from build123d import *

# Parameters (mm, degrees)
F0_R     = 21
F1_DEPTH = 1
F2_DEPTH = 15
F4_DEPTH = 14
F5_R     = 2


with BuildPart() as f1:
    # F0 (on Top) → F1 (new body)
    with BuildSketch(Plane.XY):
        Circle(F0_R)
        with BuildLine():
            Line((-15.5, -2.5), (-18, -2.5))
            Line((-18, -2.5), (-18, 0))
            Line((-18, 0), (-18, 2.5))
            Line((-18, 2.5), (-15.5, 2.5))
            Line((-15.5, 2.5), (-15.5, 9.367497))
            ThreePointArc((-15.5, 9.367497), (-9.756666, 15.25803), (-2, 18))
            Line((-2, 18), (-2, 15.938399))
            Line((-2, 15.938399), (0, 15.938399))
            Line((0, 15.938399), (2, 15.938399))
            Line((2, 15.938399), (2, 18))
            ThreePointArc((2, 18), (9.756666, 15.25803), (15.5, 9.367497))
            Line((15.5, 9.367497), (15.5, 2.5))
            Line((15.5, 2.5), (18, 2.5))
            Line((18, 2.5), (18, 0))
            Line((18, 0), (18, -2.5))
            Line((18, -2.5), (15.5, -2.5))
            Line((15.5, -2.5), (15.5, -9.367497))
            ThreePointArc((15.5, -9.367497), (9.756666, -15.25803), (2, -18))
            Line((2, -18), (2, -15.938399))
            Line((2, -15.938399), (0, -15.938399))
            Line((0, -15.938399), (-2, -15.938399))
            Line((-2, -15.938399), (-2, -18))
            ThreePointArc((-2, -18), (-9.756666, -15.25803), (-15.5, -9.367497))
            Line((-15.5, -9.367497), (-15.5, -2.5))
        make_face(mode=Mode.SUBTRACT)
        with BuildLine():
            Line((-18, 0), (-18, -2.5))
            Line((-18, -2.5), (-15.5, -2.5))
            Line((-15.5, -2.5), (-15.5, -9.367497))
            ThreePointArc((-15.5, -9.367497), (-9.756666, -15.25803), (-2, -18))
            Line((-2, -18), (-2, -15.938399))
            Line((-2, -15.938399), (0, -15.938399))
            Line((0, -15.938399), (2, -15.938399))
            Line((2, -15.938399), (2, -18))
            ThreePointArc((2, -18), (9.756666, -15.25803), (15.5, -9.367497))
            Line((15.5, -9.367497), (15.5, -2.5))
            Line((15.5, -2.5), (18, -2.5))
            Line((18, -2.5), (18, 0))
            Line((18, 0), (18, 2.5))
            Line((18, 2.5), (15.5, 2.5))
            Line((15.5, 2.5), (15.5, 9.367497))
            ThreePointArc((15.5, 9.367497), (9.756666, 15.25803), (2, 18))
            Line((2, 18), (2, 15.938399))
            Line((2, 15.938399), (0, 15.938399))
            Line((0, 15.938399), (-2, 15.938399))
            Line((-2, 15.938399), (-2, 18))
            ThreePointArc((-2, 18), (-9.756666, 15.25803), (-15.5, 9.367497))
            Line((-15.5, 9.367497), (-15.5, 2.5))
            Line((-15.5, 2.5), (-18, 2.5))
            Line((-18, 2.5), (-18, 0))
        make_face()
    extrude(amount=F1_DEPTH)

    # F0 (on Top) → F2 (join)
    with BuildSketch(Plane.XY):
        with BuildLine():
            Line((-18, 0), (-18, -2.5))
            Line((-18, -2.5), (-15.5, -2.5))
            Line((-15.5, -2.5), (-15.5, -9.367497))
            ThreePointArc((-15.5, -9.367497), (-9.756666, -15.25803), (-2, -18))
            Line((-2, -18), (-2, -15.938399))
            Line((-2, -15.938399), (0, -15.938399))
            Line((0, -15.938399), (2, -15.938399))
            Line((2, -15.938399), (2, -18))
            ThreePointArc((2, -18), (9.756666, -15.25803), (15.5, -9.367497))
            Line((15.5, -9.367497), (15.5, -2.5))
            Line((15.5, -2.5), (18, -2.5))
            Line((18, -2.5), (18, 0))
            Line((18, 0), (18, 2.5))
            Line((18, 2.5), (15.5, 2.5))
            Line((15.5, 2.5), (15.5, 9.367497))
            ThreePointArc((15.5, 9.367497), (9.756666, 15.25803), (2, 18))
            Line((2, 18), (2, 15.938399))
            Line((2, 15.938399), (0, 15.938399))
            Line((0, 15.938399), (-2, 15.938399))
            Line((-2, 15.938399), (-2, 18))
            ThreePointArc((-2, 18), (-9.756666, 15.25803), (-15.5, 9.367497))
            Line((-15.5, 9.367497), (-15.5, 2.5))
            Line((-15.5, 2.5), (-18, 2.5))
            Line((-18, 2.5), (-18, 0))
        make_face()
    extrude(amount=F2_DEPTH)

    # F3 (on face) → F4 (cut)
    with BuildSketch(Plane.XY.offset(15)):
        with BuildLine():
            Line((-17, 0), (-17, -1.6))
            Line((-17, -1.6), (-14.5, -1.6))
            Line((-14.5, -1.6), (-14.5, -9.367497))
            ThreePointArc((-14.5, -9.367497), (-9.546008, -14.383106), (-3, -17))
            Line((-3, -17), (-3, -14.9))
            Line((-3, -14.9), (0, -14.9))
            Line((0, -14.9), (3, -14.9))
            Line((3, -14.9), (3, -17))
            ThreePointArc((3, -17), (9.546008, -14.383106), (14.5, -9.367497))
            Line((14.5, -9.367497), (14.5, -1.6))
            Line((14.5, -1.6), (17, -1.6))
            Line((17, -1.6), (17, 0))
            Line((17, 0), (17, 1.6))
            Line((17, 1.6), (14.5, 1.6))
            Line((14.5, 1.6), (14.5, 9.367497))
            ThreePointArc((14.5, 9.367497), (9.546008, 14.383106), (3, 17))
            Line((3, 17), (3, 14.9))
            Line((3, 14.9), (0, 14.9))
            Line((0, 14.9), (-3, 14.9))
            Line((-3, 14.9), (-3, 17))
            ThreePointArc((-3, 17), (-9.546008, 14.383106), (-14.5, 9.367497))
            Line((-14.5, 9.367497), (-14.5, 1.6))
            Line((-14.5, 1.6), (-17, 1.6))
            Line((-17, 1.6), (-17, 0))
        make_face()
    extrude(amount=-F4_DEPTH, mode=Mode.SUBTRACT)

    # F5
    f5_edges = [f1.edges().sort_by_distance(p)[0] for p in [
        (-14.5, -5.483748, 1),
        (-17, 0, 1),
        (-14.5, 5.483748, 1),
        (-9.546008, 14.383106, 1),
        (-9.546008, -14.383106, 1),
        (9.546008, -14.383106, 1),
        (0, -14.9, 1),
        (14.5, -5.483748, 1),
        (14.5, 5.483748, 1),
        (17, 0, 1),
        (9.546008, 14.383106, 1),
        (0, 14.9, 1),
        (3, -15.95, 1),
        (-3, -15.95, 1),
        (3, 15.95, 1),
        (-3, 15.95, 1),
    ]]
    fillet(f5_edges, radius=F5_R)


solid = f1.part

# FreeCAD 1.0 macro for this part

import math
import FreeCAD as App
import Part
import Sketcher
from FreeCAD import Vector
Q = App.Units.Quantity


def edges_at(feature, points):
    """Names of the edges that pass closest to the given points."""
    edges = feature.Shape.Edges
    near = lambda p: min(range(len(edges)), key=lambda i: edges[i].distToShape(Part.Vertex(*p))[0])
    return sorted({f"Edge{near(p) + 1}" for p in points})

doc = App.newDocument("Part")
params = doc.addObject("Spreadsheet::Sheet", "Params")
for row, (alias, value) in enumerate([
    ("sketch1_diameter", "42 mm"),
    ("pad1_length", "1 mm"),
    ("sketch2_width", "4 mm"),
    ("sketch2_height", "5 mm"),
    ("sketch2_width2", "2.5 mm"),
    ("pad2_length", "15 mm"),
    ("sketch3_width", "6 mm"),
    ("sketch3_width2", "2.5 mm"),
    ("sketch3_height", "2.1 mm"),
    ("sketch3_height2", "3.2 mm"),
    ("pocket1_length", "14 mm"),
    ("fillet_radius", "2 mm"),
], start=1):
    params.set(f"A{row}", alias)
    params.set(f"B{row}", "=" + value)
    params.setAlias(f"B{row}", alias)

body = doc.addObject("PartDesign::Body", "Body")

# Sketch on XY plane
sketch1 = doc.addObject("Sketcher::SketchObject", "Sketch")
body.addObject(sketch1)
sketch1.AttachmentSupport = (doc.XY_Plane, [""])
sketch1.MapMode = "FlatFace"
sketch1.addGeometry(Part.Circle(Vector(0, 0, 0), Vector(0, 0, 1), 21), False)
sketch1.addConstraint(Sketcher.Constraint("Coincident", 0, 3, -1, 1))
sketch1.addConstraint(Sketcher.Constraint("Diameter", 0, Q("42 mm")))
sketch1.setExpression("Constraints[1]", "Params.sketch1_diameter")
pad1 = doc.addObject("PartDesign::Pad", "Pad")
body.addObject(pad1)
pad1.Profile = sketch1
pad1.setExpression("Length", "Params.pad1_length")

# Sketch on XY plane
sketch2 = doc.addObject("Sketcher::SketchObject", "Sketch001")
body.addObject(sketch2)
sketch2.AttachmentSupport = (doc.XY_Plane, [""])
sketch2.MapMode = "FlatFace"
sketch2.addGeometry(Part.LineSegment(Vector(-18, -2.5, 0), Vector(-15.5, -2.5, 0)), False)
sketch2.addGeometry(Part.LineSegment(Vector(-15.5, -2.5, 0), Vector(-15.5, -9.367497, 0)), False)
sketch2.addGeometry(Part.ArcOfCircle(Part.Circle(Vector(-0.000002, -0.000002, 0), Vector(0, 0, 1), 18.110768), math.radians(-148.853142), math.radians(-96.340188)), False)
sketch2.addGeometry(Part.LineSegment(Vector(-2, -18, 0), Vector(-2, -15.938399, 0)), False)
sketch2.addGeometry(Part.LineSegment(Vector(-2, -15.938399, 0), Vector(2, -15.938399, 0)), False)
sketch2.addGeometry(Part.LineSegment(Vector(2, -15.938399, 0), Vector(2, -18, 0)), False)
sketch2.addGeometry(Part.ArcOfCircle(Part.Circle(Vector(0.000002, -0.000002, 0), Vector(0, 0, 1), 18.110768), math.radians(-83.659812), math.radians(-31.146858)), False)
sketch2.addGeometry(Part.LineSegment(Vector(15.5, -9.367497, 0), Vector(15.5, -2.5, 0)), False)
sketch2.addGeometry(Part.LineSegment(Vector(15.5, -2.5, 0), Vector(18, -2.5, 0)), False)
sketch2.addGeometry(Part.LineSegment(Vector(18, -2.5, 0), Vector(18, 2.5, 0)), False)
sketch2.addGeometry(Part.LineSegment(Vector(18, 2.5, 0), Vector(15.5, 2.5, 0)), False)
sketch2.addGeometry(Part.LineSegment(Vector(15.5, 2.5, 0), Vector(15.5, 9.367497, 0)), False)
sketch2.addGeometry(Part.ArcOfCircle(Part.Circle(Vector(0.000002, 0.000002, 0), Vector(0, 0, 1), 18.110768), math.radians(31.146858), math.radians(83.659812)), False)
sketch2.addGeometry(Part.LineSegment(Vector(2, 18, 0), Vector(2, 15.938399, 0)), False)
sketch2.addGeometry(Part.LineSegment(Vector(2, 15.938399, 0), Vector(-2, 15.938399, 0)), False)
sketch2.addGeometry(Part.LineSegment(Vector(-2, 15.938399, 0), Vector(-2, 18, 0)), False)
sketch2.addGeometry(Part.ArcOfCircle(Part.Circle(Vector(-0.000002, 0.000002, 0), Vector(0, 0, 1), 18.110768), math.radians(96.340188), math.radians(148.853142)), False)
sketch2.addGeometry(Part.LineSegment(Vector(-15.5, 9.367497, 0), Vector(-15.5, 2.5, 0)), False)
sketch2.addGeometry(Part.LineSegment(Vector(-15.5, 2.5, 0), Vector(-18, 2.5, 0)), False)
sketch2.addGeometry(Part.LineSegment(Vector(-18, 2.5, 0), Vector(-18, -2.5, 0)), False)
sketch2.addConstraint(Sketcher.Constraint("Coincident", 0, 2, 1, 1))
sketch2.addConstraint(Sketcher.Constraint("Coincident", 1, 2, 2, 1))
sketch2.addConstraint(Sketcher.Constraint("Coincident", 2, 2, 3, 1))
sketch2.addConstraint(Sketcher.Constraint("Coincident", 3, 2, 4, 1))
sketch2.addConstraint(Sketcher.Constraint("Coincident", 4, 2, 5, 1))
sketch2.addConstraint(Sketcher.Constraint("Coincident", 5, 2, 6, 1))
sketch2.addConstraint(Sketcher.Constraint("Coincident", 6, 2, 7, 1))
sketch2.addConstraint(Sketcher.Constraint("Coincident", 7, 2, 8, 1))
sketch2.addConstraint(Sketcher.Constraint("Coincident", 8, 2, 9, 1))
sketch2.addConstraint(Sketcher.Constraint("Coincident", 9, 2, 10, 1))
sketch2.addConstraint(Sketcher.Constraint("Coincident", 10, 2, 11, 1))
sketch2.addConstraint(Sketcher.Constraint("Coincident", 11, 2, 12, 1))
sketch2.addConstraint(Sketcher.Constraint("Coincident", 12, 2, 13, 1))
sketch2.addConstraint(Sketcher.Constraint("Coincident", 13, 2, 14, 1))
sketch2.addConstraint(Sketcher.Constraint("Coincident", 14, 2, 15, 1))
sketch2.addConstraint(Sketcher.Constraint("Coincident", 15, 2, 16, 1))
sketch2.addConstraint(Sketcher.Constraint("Coincident", 16, 2, 17, 1))
sketch2.addConstraint(Sketcher.Constraint("Coincident", 17, 2, 18, 1))
sketch2.addConstraint(Sketcher.Constraint("Coincident", 18, 2, 19, 1))
sketch2.addConstraint(Sketcher.Constraint("Coincident", 19, 2, 0, 1))
sketch2.addConstraint(Sketcher.Constraint("Horizontal", 0))
sketch2.addConstraint(Sketcher.Constraint("Vertical", 1))
sketch2.addConstraint(Sketcher.Constraint("Vertical", 3))
sketch2.addConstraint(Sketcher.Constraint("Horizontal", 4))
sketch2.addConstraint(Sketcher.Constraint("Vertical", 5))
sketch2.addConstraint(Sketcher.Constraint("Vertical", 7))
sketch2.addConstraint(Sketcher.Constraint("Horizontal", 8))
sketch2.addConstraint(Sketcher.Constraint("Vertical", 9))
sketch2.addConstraint(Sketcher.Constraint("Horizontal", 10))
sketch2.addConstraint(Sketcher.Constraint("Vertical", 11))
sketch2.addConstraint(Sketcher.Constraint("Vertical", 13))
sketch2.addConstraint(Sketcher.Constraint("Horizontal", 14))
sketch2.addConstraint(Sketcher.Constraint("Vertical", 15))
sketch2.addConstraint(Sketcher.Constraint("Vertical", 17))
sketch2.addConstraint(Sketcher.Constraint("Horizontal", 18))
sketch2.addConstraint(Sketcher.Constraint("Vertical", 19))
sketch2.addConstraint(Sketcher.Constraint("Coincident", 2, 3, -1, 1))
sketch2.addConstraint(Sketcher.Constraint("Coincident", 6, 3, -1, 1))
sketch2.addConstraint(Sketcher.Constraint("Coincident", 12, 3, -1, 1))
sketch2.addConstraint(Sketcher.Constraint("Coincident", 16, 3, -1, 1))
sketch2.addConstraint(Sketcher.Constraint("Equal", 2, 6))
sketch2.addConstraint(Sketcher.Constraint("Equal", 6, 12))
sketch2.addConstraint(Sketcher.Constraint("Equal", 12, 16))
sketch2.addConstraint(Sketcher.Constraint("Symmetric", 0, 2, 10, 2, -1, 1))
sketch2.addConstraint(Sketcher.Constraint("Symmetric", 3, 2, 13, 2, -1, 1))
sketch2.addConstraint(Sketcher.Constraint("Symmetric", 7, 2, 17, 2, -1, 1))
sketch2.addConstraint(Sketcher.Constraint("Symmetric", 0, 2, 7, 2, -2))
sketch2.addConstraint(Sketcher.Constraint("Horizontal", 2, 2, 5, 2))
sketch2.addConstraint(Sketcher.Constraint("Horizontal", 12, 2, 15, 2))
sketch2.addConstraint(Sketcher.Constraint("Equal", 0, 8))
sketch2.addConstraint(Sketcher.Constraint("DistanceX", 4, 1, 4, 2, Q("4 mm")))
sketch2.addConstraint(Sketcher.Constraint("DistanceY", 9, 1, 9, 2, Q("5 mm")))
sketch2.addConstraint(Sketcher.Constraint("DistanceX", 0, 1, 0, 2, Q("2.5 mm")))
sketch2.addConstraint(Sketcher.Constraint("DistanceY", 2, 2, -1, 1, Q("18 mm")))
sketch2.addConstraint(Sketcher.Constraint("DistanceX", -1, 1, 8, 2, Q("18 mm")))
sketch2.addConstraint(Sketcher.Constraint("DistanceY", 3, 1, 3, 2, Q("2.061601 mm")))
sketch2.setExpression("Constraints[50]", "Params.sketch2_width")
sketch2.setExpression("Constraints[51]", "Params.sketch2_height")
sketch2.setExpression("Constraints[52]", "Params.sketch2_width2")
pad2 = doc.addObject("PartDesign::Pad", "Pad001")
body.addObject(pad2)
pad2.Profile = sketch2
pad2.setExpression("Length", "Params.pad2_length")

# Sketch on XY plane
sketch3 = doc.addObject("Sketcher::SketchObject", "Sketch002")
body.addObject(sketch3)
sketch3.AttachmentSupport = (doc.XY_Plane, [""])
sketch3.MapMode = "FlatFace"
sketch3.AttachmentOffset = App.Placement(Vector(0, 0, 15), App.Rotation())
sketch3.addGeometry(Part.LineSegment(Vector(-17, -1.6, 0), Vector(-14.5, -1.6, 0)), False)
sketch3.addGeometry(Part.LineSegment(Vector(-14.5, -1.6, 0), Vector(-14.5, -9.367497, 0)), False)
sketch3.addGeometry(Part.ArcOfCircle(Part.Circle(Vector(-0.000001, -0.000002, 0), Vector(0, 0, 1), 17.262674), math.radians(-147.136158), math.radians(-100.007977)), False)
sketch3.addGeometry(Part.LineSegment(Vector(-3, -17, 0), Vector(-3, -14.9, 0)), False)
sketch3.addGeometry(Part.LineSegment(Vector(-3, -14.9, 0), Vector(3, -14.9, 0)), False)
sketch3.addGeometry(Part.LineSegment(Vector(3, -14.9, 0), Vector(3, -17, 0)), False)
sketch3.addGeometry(Part.ArcOfCircle(Part.Circle(Vector(0.000001, -0.000002, 0), Vector(0, 0, 1), 17.262674), math.radians(-79.992023), math.radians(-32.863842)), False)
sketch3.addGeometry(Part.LineSegment(Vector(14.5, -9.367497, 0), Vector(14.5, -1.6, 0)), False)
sketch3.addGeometry(Part.LineSegment(Vector(14.5, -1.6, 0), Vector(17, -1.6, 0)), False)
sketch3.addGeometry(Part.LineSegment(Vector(17, -1.6, 0), Vector(17, 1.6, 0)), False)
sketch3.addGeometry(Part.LineSegment(Vector(17, 1.6, 0), Vector(14.5, 1.6, 0)), False)
sketch3.addGeometry(Part.LineSegment(Vector(14.5, 1.6, 0), Vector(14.5, 9.367497, 0)), False)
sketch3.addGeometry(Part.ArcOfCircle(Part.Circle(Vector(0.000001, 0.000002, 0), Vector(0, 0, 1), 17.262674), math.radians(32.863842), math.radians(79.992023)), False)
sketch3.addGeometry(Part.LineSegment(Vector(3, 17, 0), Vector(3, 14.9, 0)), False)
sketch3.addGeometry(Part.LineSegment(Vector(3, 14.9, 0), Vector(-3, 14.9, 0)), False)
sketch3.addGeometry(Part.LineSegment(Vector(-3, 14.9, 0), Vector(-3, 17, 0)), False)
sketch3.addGeometry(Part.ArcOfCircle(Part.Circle(Vector(-0.000001, 0.000002, 0), Vector(0, 0, 1), 17.262674), math.radians(100.007977), math.radians(147.136158)), False)
sketch3.addGeometry(Part.LineSegment(Vector(-14.5, 9.367497, 0), Vector(-14.5, 1.6, 0)), False)
sketch3.addGeometry(Part.LineSegment(Vector(-14.5, 1.6, 0), Vector(-17, 1.6, 0)), False)
sketch3.addGeometry(Part.LineSegment(Vector(-17, 1.6, 0), Vector(-17, -1.6, 0)), False)
sketch3.addConstraint(Sketcher.Constraint("Coincident", 0, 2, 1, 1))
sketch3.addConstraint(Sketcher.Constraint("Coincident", 1, 2, 2, 1))
sketch3.addConstraint(Sketcher.Constraint("Coincident", 2, 2, 3, 1))
sketch3.addConstraint(Sketcher.Constraint("Coincident", 3, 2, 4, 1))
sketch3.addConstraint(Sketcher.Constraint("Coincident", 4, 2, 5, 1))
sketch3.addConstraint(Sketcher.Constraint("Coincident", 5, 2, 6, 1))
sketch3.addConstraint(Sketcher.Constraint("Coincident", 6, 2, 7, 1))
sketch3.addConstraint(Sketcher.Constraint("Coincident", 7, 2, 8, 1))
sketch3.addConstraint(Sketcher.Constraint("Coincident", 8, 2, 9, 1))
sketch3.addConstraint(Sketcher.Constraint("Coincident", 9, 2, 10, 1))
sketch3.addConstraint(Sketcher.Constraint("Coincident", 10, 2, 11, 1))
sketch3.addConstraint(Sketcher.Constraint("Coincident", 11, 2, 12, 1))
sketch3.addConstraint(Sketcher.Constraint("Coincident", 12, 2, 13, 1))
sketch3.addConstraint(Sketcher.Constraint("Coincident", 13, 2, 14, 1))
sketch3.addConstraint(Sketcher.Constraint("Coincident", 14, 2, 15, 1))
sketch3.addConstraint(Sketcher.Constraint("Coincident", 15, 2, 16, 1))
sketch3.addConstraint(Sketcher.Constraint("Coincident", 16, 2, 17, 1))
sketch3.addConstraint(Sketcher.Constraint("Coincident", 17, 2, 18, 1))
sketch3.addConstraint(Sketcher.Constraint("Coincident", 18, 2, 19, 1))
sketch3.addConstraint(Sketcher.Constraint("Coincident", 19, 2, 0, 1))
sketch3.addConstraint(Sketcher.Constraint("Horizontal", 0))
sketch3.addConstraint(Sketcher.Constraint("Vertical", 1))
sketch3.addConstraint(Sketcher.Constraint("Vertical", 3))
sketch3.addConstraint(Sketcher.Constraint("Horizontal", 4))
sketch3.addConstraint(Sketcher.Constraint("Vertical", 5))
sketch3.addConstraint(Sketcher.Constraint("Vertical", 7))
sketch3.addConstraint(Sketcher.Constraint("Horizontal", 8))
sketch3.addConstraint(Sketcher.Constraint("Vertical", 9))
sketch3.addConstraint(Sketcher.Constraint("Horizontal", 10))
sketch3.addConstraint(Sketcher.Constraint("Vertical", 11))
sketch3.addConstraint(Sketcher.Constraint("Vertical", 13))
sketch3.addConstraint(Sketcher.Constraint("Horizontal", 14))
sketch3.addConstraint(Sketcher.Constraint("Vertical", 15))
sketch3.addConstraint(Sketcher.Constraint("Vertical", 17))
sketch3.addConstraint(Sketcher.Constraint("Horizontal", 18))
sketch3.addConstraint(Sketcher.Constraint("Vertical", 19))
sketch3.addConstraint(Sketcher.Constraint("Coincident", 2, 3, -1, 1))
sketch3.addConstraint(Sketcher.Constraint("Coincident", 6, 3, -1, 1))
sketch3.addConstraint(Sketcher.Constraint("Coincident", 12, 3, -1, 1))
sketch3.addConstraint(Sketcher.Constraint("Coincident", 16, 3, -1, 1))
sketch3.addConstraint(Sketcher.Constraint("Equal", 2, 6))
sketch3.addConstraint(Sketcher.Constraint("Equal", 6, 12))
sketch3.addConstraint(Sketcher.Constraint("Equal", 12, 16))
sketch3.addConstraint(Sketcher.Constraint("Symmetric", 0, 2, 10, 2, -1, 1))
sketch3.addConstraint(Sketcher.Constraint("Symmetric", 3, 2, 13, 2, -1, 1))
sketch3.addConstraint(Sketcher.Constraint("Symmetric", 7, 2, 17, 2, -1, 1))
sketch3.addConstraint(Sketcher.Constraint("Symmetric", 0, 2, 7, 2, -2))
sketch3.addConstraint(Sketcher.Constraint("Horizontal", 2, 2, 5, 2))
sketch3.addConstraint(Sketcher.Constraint("Horizontal", 12, 2, 15, 2))
sketch3.addConstraint(Sketcher.Constraint("Equal", 0, 8))
sketch3.addConstraint(Sketcher.Constraint("DistanceX", 4, 1, 4, 2, Q("6 mm")))
sketch3.addConstraint(Sketcher.Constraint("DistanceX", 0, 1, 0, 2, Q("2.5 mm")))
sketch3.addConstraint(Sketcher.Constraint("DistanceY", 3, 1, 3, 2, Q("2.1 mm")))
sketch3.addConstraint(Sketcher.Constraint("DistanceY", 9, 1, 9, 2, Q("3.2 mm")))
sketch3.addConstraint(Sketcher.Constraint("DistanceY", 2, 2, -1, 1, Q("17 mm")))
sketch3.addConstraint(Sketcher.Constraint("DistanceX", -1, 1, 8, 2, Q("17 mm")))
sketch3.setExpression("Constraints[50]", "Params.sketch3_width")
sketch3.setExpression("Constraints[51]", "Params.sketch3_width2")
sketch3.setExpression("Constraints[52]", "Params.sketch3_height")
sketch3.setExpression("Constraints[53]", "Params.sketch3_height2")
pocket1 = doc.addObject("PartDesign::Pocket", "Pocket")
body.addObject(pocket1)
pocket1.Profile = sketch3
pocket1.setExpression("Length", "Params.pocket1_length")
doc.recompute()

fillet = doc.addObject("PartDesign::Fillet", "Fillet")
body.addObject(fillet)
fillet.Base = (pocket1, edges_at(pocket1, [
    (-14.5, -5.484, 1),
    (-17, 0, 1),
    (-14.5, 5.484, 1),
    (-9.546, 14.383, 1),
    (-9.546, -14.383, 1),
    (9.546, -14.383, 1),
    (0, -14.9, 1),
    (14.5, -5.484, 1),
    (14.5, 5.484, 1),
    (17, 0, 1),
    (9.546, 14.383, 1),
    (0, 14.9, 1),
    (3, -15.95, 1),
    (-3, -15.95, 1),
    (3, 15.95, 1),
    (-3, 15.95, 1),
]))
fillet.setExpression("Radius", "Params.fillet_radius")

doc.recompute()
